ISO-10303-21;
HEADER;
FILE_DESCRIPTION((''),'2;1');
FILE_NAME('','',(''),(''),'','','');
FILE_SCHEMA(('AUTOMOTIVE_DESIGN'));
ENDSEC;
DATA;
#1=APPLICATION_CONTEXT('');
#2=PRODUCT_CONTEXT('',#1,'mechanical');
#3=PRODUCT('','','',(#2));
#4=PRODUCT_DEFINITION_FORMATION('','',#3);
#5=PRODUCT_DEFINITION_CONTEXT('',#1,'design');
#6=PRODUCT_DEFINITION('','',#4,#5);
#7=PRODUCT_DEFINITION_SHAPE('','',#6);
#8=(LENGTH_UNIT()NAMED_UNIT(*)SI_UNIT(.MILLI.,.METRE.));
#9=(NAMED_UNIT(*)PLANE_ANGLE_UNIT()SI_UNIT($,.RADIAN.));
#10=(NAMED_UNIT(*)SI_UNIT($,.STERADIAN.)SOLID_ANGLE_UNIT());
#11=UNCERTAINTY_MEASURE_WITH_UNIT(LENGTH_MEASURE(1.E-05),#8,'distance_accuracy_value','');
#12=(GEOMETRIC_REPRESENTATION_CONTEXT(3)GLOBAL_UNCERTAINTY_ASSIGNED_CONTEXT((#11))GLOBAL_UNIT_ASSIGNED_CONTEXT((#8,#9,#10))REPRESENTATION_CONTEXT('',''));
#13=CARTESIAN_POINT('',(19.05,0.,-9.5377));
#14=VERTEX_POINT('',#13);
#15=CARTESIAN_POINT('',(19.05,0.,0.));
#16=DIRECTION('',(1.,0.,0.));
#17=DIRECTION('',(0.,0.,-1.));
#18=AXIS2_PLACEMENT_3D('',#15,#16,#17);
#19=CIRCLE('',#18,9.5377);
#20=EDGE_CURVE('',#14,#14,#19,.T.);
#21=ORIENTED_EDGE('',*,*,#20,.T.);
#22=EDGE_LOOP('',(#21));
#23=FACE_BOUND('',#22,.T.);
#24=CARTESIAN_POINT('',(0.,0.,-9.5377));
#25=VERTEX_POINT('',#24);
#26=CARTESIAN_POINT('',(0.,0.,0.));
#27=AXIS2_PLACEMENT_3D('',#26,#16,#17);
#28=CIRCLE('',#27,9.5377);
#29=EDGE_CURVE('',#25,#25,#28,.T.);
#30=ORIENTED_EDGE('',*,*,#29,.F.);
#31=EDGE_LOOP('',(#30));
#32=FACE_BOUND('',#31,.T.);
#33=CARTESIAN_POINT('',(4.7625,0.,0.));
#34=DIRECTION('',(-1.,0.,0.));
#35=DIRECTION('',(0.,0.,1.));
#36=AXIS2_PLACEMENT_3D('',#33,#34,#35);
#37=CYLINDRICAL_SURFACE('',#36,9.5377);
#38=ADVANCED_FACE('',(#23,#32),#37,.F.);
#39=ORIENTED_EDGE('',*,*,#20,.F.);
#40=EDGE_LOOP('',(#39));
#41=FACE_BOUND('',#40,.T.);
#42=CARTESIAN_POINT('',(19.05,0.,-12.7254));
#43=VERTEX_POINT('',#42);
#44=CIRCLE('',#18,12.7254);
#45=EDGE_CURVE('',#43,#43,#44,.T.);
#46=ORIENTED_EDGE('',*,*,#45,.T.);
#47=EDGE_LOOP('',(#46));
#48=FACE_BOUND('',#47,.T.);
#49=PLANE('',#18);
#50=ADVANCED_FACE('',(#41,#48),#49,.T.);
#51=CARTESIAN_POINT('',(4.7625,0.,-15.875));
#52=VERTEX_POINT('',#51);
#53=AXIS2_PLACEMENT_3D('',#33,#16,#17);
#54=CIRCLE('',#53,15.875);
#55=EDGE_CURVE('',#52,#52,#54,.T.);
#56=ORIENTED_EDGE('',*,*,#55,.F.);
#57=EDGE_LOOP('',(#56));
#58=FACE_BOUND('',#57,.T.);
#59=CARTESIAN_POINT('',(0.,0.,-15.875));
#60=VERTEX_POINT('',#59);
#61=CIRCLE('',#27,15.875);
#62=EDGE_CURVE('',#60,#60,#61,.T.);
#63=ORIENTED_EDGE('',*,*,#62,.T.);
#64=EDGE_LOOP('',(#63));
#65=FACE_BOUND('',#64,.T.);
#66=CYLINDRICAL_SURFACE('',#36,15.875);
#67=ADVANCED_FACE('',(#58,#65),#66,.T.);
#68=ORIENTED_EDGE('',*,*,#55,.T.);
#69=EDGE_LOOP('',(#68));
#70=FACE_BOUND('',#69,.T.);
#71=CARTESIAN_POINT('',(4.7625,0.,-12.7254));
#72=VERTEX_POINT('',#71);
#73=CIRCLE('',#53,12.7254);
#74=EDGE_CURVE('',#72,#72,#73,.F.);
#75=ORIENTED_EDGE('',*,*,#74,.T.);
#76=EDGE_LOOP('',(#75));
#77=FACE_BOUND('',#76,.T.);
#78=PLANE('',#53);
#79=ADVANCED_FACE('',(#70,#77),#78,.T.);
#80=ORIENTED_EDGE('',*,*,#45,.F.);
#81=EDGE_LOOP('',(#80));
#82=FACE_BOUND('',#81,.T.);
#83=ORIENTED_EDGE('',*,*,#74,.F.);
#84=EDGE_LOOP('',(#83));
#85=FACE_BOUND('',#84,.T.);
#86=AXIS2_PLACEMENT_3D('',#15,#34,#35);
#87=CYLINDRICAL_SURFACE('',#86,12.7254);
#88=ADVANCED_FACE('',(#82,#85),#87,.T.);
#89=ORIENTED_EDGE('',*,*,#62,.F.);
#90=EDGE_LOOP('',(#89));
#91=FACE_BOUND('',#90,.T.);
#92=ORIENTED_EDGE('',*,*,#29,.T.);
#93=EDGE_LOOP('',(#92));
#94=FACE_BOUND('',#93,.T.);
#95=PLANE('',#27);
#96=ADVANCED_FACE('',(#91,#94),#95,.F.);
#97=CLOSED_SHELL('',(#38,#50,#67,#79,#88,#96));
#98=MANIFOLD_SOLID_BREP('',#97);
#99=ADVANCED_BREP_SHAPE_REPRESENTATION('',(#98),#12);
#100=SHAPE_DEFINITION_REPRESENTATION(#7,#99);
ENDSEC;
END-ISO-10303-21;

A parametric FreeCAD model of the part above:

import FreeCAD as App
import Part
import Sketcher
Q = App.Units.Quantity

doc = App.newDocument("Part")
params = doc.addObject("Spreadsheet::Sheet", "Params")
for row, (alias, value) in enumerate([
    ("sketch1_diameter", "1.25 in"),
    ("sketch1_diameter2", "0.751 in"),
    ("pad1_length", "0.1875 in"),
    ("sketch2_diameter", "1.002 in"),
    ("sketch2_diameter2", "0.751 in"),
    ("pad2_length", "0.75 in"),
], start=1):
    params.set(f"A{row}", alias)
    params.set(f"B{row}", "=" + value)
    params.setAlias(f"B{row}", alias)

body = doc.addObject("PartDesign::Body", "Body")

# Sketch on YZ plane
sketch1 = body.newObject("Sketcher::SketchObject", "Sketch")
sketch1.AttachmentSupport = (doc.getObject("YZ_Plane"), [""])
sketch1.MapMode = "FlatFace"
sketch1.addGeometry(Part.Circle(App.Vector(0, 0, 0), App.Vector(0, 0, 1), 16), False)
sketch1.addGeometry(Part.Circle(App.Vector(0, 0, 0), App.Vector(0, 0, 1), 10), False)
sketch1.addConstraint(Sketcher.Constraint("Coincident", 0, 3, -1, 1))
sketch1.addConstraint(Sketcher.Constraint("Coincident", 1, 3, -1, 1))
sketch1.addConstraint(Sketcher.Constraint("Diameter", 0, Q("1.25 in")))
sketch1.addConstraint(Sketcher.Constraint("Diameter", 1, Q("0.751 in")))
sketch1.setExpression("Constraints[2]", "Params.sketch1_diameter")
sketch1.setExpression("Constraints[3]", "Params.sketch1_diameter2")
pad1 = body.newObject("PartDesign::Pad", "Pad")
pad1.Profile = sketch1
pad1.setExpression("Length", "Params.pad1_length")

# Sketch on YZ plane
sketch2 = body.newObject("Sketcher::SketchObject", "Sketch001")
sketch2.AttachmentSupport = (doc.getObject("YZ_Plane"), [""])
sketch2.MapMode = "FlatFace"
sketch2.addGeometry(Part.Circle(App.Vector(0, 0, 0), App.Vector(0, 0, 1), 13), False)
sketch2.addGeometry(Part.Circle(App.Vector(0, 0, 0), App.Vector(0, 0, 1), 10), False)
sketch2.addConstraint(Sketcher.Constraint("Coincident", 0, 3, -1, 1))
sketch2.addConstraint(Sketcher.Constraint("Coincident", 1, 3, -1, 1))
sketch2.addConstraint(Sketcher.Constraint("Diameter", 0, Q("1.002 in")))
sketch2.addConstraint(Sketcher.Constraint("Diameter", 1, Q("0.751 in")))
sketch2.setExpression("Constraints[2]", "Params.sketch2_diameter")
sketch2.setExpression("Constraints[3]", "Params.sketch2_diameter2")
pad2 = body.newObject("PartDesign::Pad", "Pad001")
pad2.Profile = sketch2
pad2.setExpression("Length", "Params.pad2_length")

doc.recompute()
